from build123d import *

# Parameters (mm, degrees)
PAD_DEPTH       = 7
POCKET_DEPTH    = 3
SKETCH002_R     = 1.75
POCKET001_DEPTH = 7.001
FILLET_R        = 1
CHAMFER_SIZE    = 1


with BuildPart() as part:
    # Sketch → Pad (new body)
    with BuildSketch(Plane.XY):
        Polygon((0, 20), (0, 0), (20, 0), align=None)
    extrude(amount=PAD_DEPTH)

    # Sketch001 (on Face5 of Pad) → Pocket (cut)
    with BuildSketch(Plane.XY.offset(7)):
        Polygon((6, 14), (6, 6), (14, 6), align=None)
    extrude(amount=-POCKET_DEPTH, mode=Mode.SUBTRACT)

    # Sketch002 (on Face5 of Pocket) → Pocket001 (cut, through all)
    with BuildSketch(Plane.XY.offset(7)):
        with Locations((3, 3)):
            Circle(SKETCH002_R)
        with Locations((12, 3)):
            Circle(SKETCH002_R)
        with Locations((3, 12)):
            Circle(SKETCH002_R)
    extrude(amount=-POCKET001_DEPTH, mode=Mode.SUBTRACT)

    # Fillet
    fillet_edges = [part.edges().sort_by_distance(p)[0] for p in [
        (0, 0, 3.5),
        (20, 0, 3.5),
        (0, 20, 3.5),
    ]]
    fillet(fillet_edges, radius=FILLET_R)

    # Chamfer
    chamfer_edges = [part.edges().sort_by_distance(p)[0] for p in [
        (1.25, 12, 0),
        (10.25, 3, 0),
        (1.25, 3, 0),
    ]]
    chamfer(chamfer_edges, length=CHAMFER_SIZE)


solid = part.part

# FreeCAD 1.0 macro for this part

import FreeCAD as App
import Part
import Sketcher
Q = App.Units.Quantity


def edges_at(feature, points):
    """Names of the edges that pass closest to the given points."""
    edges = feature.Shape.Edges
    near = lambda p: min(range(len(edges)), key=lambda i: edges[i].distToShape(Part.Vertex(*p))[0])
    return sorted({f"Edge{near(p) + 1}" for p in points})

doc = App.newDocument("Part")
body = doc.addObject("PartDesign::Body", "Body")

# Sketch on XY plane
sketch1 = doc.addObject("Sketcher::SketchObject", "Sketch")
body.addObject(sketch1)
sketch1.AttachmentSupport = (doc.XY_Plane, [""])
sketch1.MapMode = "FlatFace"
sketch1.addGeometry([
    Part.LineSegment(App.Vector(0, 20, 0), App.Vector(0, 0, 0)),
    Part.LineSegment(App.Vector(0, 0, 0), App.Vector(20, 0, 0)),
    Part.LineSegment(App.Vector(20, 0, 0), App.Vector(0, 20, 0)),
], False)
sketch1.addConstraint([
    Sketcher.Constraint("Coincident", 0, 2, 1, 1),
    Sketcher.Constraint("Coincident", 1, 2, 2, 1),
    Sketcher.Constraint("Coincident", 2, 2, 0, 1),
    Sketcher.Constraint("Vertical", 0),
    Sketcher.Constraint("Horizontal", 1),
    Sketcher.Constraint("Coincident", 0, 2, -1, 1),
    Sketcher.Constraint("Equal", 1, 0),
    Sketcher.Constraint("DistanceX", 1, 1, 1, 2, Q("20 mm")),
])
pad1 = doc.addObject("PartDesign::Pad", "Pad")
body.addObject(pad1)
pad1.Profile = sketch1
pad1.Length = 7

# Sketch on XY plane
sketch2 = doc.addObject("Sketcher::SketchObject", "Sketch001")
body.addObject(sketch2)
sketch2.AttachmentSupport = (doc.XY_Plane, [""])
sketch2.MapMode = "FlatFace"
sketch2.AttachmentOffset = App.Placement(App.Vector(0, 0, 7), App.Rotation())
sketch2.addGeometry([
    Part.LineSegment(App.Vector(6, 14, 0), App.Vector(6, 6, 0)),
    Part.LineSegment(App.Vector(6, 6, 0), App.Vector(14, 6, 0)),
    Part.LineSegment(App.Vector(14, 6, 0), App.Vector(6, 14, 0)),
], False)
sketch2.addConstraint([
    Sketcher.Constraint("Coincident", 0, 2, 1, 1),
    Sketcher.Constraint("Coincident", 1, 2, 2, 1),
    Sketcher.Constraint("Coincident", 2, 2, 0, 1),
    Sketcher.Constraint("Vertical", 0),
    Sketcher.Constraint("Horizontal", 1),
    Sketcher.Constraint("Equal", 1, 0),
    Sketcher.Constraint("DistanceX", 1, 1, 1, 2, Q("8 mm")),
    Sketcher.Constraint("DistanceX", -1, 1, 0, 2, Q("6 mm")),
    Sketcher.Constraint("DistanceY", -1, 1, 0, 2, Q("6 mm")),
])
pocket1 = doc.addObject("PartDesign::Pocket", "Pocket")
body.addObject(pocket1)
pocket1.Profile = sketch2
pocket1.Length = 3

# Sketch on XY plane
sketch3 = doc.addObject("Sketcher::SketchObject", "Sketch002")
body.addObject(sketch3)
sketch3.AttachmentSupport = (doc.XY_Plane, [""])
sketch3.MapMode = "FlatFace"
sketch3.AttachmentOffset = App.Placement(App.Vector(0, 0, 7), App.Rotation())
sketch3.addGeometry([
    Part.Circle(App.Vector(3, 3, 0), App.Vector(0, 0, 1), 1.8),
    Part.Circle(App.Vector(12, 3, 0), App.Vector(0, 0, 1), 1.8),
    Part.Circle(App.Vector(3, 12, 0), App.Vector(0, 0, 1), 1.8),
], False)
sketch3.addConstraint([
    Sketcher.Constraint("Equal", 0, 1),
    Sketcher.Constraint("Equal", 1, 2),
    Sketcher.Constraint("Horizontal", 0, 3, 1, 3),
    Sketcher.Constraint("Vertical", 0, 3, 2, 3),
    Sketcher.Constraint("Diameter", 0, Q("3.5 mm")),
    Sketcher.Constraint("DistanceX", -1, 1, 0, 3, Q("3 mm")),
    Sketcher.Constraint("DistanceY", -1, 1, 0, 3, Q("3 mm")),
    Sketcher.Constraint("DistanceX", -1, 1, 1, 3, Q("12 mm")),
    Sketcher.Constraint("DistanceY", -1, 1, 2, 3, Q("12 mm")),
])
pocket2 = doc.addObject("PartDesign::Pocket", "Pocket001")
body.addObject(pocket2)
pocket2.Profile = sketch3
pocket2.Type = "ThroughAll"
doc.recompute()

fillet = doc.addObject("PartDesign::Fillet", "Fillet")
body.addObject(fillet)
fillet.Base = (pocket2, edges_at(pocket2, [(0, 0, 3.5), (20, 0, 3.5), (0, 20, 3.5)]))
fillet.Radius = 1
doc.recompute()

chamfer = doc.addObject("PartDesign::Chamfer", "Chamfer")
body.addObject(chamfer)
chamfer.Base = (fillet, edges_at(fillet, [(1.25, 12, 0), (10.25, 3, 0), (1.25, 3, 0)]))
chamfer.Size = 1

doc.recompute()
